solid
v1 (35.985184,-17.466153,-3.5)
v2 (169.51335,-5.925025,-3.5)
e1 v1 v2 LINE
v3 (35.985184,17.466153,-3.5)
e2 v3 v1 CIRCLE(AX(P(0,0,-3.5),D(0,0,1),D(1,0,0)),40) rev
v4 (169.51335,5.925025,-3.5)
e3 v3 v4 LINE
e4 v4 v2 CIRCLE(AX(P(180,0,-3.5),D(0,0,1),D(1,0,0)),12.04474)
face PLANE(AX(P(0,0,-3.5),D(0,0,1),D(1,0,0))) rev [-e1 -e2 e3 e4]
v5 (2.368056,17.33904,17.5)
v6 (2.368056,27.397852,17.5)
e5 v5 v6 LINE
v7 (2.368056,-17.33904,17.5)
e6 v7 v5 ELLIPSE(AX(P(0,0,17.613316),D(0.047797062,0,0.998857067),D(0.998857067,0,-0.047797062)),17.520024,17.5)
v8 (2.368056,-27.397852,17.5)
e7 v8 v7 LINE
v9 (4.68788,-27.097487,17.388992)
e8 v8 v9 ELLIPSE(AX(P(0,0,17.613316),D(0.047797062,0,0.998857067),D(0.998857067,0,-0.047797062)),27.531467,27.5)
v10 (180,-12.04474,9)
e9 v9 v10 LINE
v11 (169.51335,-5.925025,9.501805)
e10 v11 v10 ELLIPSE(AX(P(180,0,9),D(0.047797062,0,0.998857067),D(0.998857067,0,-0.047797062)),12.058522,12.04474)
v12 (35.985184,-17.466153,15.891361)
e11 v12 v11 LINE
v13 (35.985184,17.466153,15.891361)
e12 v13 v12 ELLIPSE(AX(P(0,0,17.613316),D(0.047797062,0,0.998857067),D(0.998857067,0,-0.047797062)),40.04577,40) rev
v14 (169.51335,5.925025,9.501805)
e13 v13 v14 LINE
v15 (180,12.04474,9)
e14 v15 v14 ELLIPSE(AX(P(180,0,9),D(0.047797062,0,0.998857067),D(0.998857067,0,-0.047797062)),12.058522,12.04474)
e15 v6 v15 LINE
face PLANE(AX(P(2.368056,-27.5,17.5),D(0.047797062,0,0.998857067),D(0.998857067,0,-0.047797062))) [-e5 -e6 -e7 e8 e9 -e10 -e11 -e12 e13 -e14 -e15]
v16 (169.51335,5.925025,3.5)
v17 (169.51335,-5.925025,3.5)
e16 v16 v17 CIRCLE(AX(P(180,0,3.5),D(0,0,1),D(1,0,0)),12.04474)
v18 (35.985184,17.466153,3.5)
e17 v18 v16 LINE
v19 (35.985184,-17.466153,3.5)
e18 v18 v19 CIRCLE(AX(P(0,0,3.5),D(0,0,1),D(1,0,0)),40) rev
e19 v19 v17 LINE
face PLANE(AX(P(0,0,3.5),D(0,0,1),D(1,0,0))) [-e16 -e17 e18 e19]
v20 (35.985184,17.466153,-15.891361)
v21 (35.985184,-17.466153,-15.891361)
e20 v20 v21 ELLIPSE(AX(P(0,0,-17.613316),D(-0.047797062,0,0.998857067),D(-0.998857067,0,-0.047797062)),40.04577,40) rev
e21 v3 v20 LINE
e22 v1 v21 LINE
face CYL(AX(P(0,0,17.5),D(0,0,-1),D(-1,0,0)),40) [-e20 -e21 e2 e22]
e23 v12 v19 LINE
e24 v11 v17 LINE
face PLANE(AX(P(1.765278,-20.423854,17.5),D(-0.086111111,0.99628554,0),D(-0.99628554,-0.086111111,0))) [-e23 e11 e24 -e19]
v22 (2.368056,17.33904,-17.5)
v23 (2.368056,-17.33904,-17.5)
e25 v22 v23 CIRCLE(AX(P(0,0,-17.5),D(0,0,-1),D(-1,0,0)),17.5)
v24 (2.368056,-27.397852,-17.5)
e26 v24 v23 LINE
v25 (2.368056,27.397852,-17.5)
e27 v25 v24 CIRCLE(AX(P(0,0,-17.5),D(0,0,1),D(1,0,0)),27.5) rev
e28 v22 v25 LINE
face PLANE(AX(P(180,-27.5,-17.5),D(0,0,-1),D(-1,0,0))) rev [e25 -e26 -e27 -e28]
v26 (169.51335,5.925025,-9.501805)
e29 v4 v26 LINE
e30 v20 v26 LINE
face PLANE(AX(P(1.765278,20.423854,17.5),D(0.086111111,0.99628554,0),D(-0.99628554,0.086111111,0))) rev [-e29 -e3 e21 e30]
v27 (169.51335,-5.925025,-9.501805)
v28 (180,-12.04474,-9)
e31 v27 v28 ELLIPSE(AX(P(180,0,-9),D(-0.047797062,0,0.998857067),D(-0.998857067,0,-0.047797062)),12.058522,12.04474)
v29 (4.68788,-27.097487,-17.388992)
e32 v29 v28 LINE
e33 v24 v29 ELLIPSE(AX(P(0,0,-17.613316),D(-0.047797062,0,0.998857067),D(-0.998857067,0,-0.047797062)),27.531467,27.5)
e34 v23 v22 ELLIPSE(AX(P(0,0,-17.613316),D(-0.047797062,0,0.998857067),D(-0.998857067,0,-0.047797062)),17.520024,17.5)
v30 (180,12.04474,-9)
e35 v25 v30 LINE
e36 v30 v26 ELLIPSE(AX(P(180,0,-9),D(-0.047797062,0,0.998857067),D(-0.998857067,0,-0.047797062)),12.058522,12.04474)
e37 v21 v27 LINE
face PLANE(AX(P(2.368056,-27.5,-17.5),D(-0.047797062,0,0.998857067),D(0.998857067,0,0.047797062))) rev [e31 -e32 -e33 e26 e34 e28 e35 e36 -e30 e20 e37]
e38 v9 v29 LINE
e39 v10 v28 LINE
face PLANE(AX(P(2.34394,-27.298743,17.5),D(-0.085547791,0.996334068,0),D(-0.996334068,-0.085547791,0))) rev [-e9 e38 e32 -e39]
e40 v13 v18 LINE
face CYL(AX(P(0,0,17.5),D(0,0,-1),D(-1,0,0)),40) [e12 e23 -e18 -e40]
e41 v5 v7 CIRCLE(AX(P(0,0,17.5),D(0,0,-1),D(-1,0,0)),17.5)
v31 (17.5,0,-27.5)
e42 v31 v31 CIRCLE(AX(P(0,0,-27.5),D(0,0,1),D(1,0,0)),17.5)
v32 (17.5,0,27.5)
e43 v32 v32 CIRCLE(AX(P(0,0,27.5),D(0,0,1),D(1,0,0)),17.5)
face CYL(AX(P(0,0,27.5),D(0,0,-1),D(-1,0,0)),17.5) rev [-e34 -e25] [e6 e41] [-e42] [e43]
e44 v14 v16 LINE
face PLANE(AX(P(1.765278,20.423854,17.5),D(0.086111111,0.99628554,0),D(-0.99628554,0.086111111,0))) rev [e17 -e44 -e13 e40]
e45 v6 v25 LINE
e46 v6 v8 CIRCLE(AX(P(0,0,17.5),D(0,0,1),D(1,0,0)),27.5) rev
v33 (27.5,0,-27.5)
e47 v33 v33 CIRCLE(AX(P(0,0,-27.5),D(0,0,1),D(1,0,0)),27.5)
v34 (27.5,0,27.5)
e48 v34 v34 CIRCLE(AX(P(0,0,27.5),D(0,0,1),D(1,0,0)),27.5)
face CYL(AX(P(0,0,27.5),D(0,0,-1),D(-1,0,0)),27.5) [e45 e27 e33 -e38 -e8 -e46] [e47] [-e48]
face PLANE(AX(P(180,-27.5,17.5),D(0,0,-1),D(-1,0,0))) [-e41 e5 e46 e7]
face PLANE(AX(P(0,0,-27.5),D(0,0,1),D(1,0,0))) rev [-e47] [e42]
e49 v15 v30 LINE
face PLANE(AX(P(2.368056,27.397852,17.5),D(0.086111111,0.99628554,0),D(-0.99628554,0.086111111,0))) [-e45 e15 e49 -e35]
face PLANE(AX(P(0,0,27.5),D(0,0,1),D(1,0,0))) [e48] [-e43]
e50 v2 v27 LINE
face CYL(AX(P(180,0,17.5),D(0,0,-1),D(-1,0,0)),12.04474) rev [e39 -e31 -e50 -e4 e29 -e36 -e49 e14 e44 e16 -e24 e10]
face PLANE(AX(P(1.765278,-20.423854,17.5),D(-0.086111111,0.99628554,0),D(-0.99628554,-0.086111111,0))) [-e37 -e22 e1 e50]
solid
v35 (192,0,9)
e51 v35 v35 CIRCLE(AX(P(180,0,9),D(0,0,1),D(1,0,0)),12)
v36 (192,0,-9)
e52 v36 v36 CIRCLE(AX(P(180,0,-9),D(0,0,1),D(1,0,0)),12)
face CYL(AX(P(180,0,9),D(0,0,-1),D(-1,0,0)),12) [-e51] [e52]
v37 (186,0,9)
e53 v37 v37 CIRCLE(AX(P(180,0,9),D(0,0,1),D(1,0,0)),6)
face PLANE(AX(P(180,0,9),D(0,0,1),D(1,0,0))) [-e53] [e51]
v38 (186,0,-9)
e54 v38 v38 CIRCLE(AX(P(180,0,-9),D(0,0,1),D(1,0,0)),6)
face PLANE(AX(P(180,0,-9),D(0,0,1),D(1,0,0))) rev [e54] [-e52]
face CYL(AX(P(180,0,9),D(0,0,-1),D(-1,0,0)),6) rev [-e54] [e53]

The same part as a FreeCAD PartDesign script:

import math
import FreeCAD as App
import Part
import Sketcher

doc = App.newDocument("Part")
body = doc.addObject("PartDesign::Body", "Body")

sketch1 = doc.addObject("Sketcher::SketchObject", "Sketch")
body.addObject(sketch1)
sketch1.AttachmentSupport = (doc.XY_Plane, [""])
sketch1.MapMode = "FlatFace"
sketch1.addGeometry(Part.Circle(App.Vector(0, 0, 0), App.Vector(0, 0, 1), 28), False)
sketch1.addGeometry(Part.Circle(App.Vector(0, 0, 0), App.Vector(0, 0, 1), 18), False)
sketch1.addConstraint(Sketcher.Constraint("Coincident", 0, 3, -1, 1))
sketch1.addConstraint(Sketcher.Constraint("Coincident", 1, 3, -1, 1))
sketch1.addConstraint(Sketcher.Constraint("Diameter", 0, 55.0))
sketch1.addConstraint(Sketcher.Constraint("Diameter", 1, 35.0))
pad1 = doc.addObject("PartDesign::Pad", "Pad")
body.addObject(pad1)
pad1.Profile = sketch1
pad1.Length = 55
pad1.Midplane = True

sketch2 = doc.addObject("Sketcher::SketchObject", "Sketch001")
body.addObject(sketch2)
sketch2.AttachmentSupport = (doc.XY_Plane, [""])
sketch2.MapMode = "FlatFace"
sketch2.addGeometry(Part.LineSegment(App.Vector(180, 12.045, 0), App.Vector(2.368, 27.398, 0)), False)
sketch2.addGeometry(Part.ArcOfCircle(Part.Circle(App.Vector(0, 0, 0), App.Vector(0, 0, 1), 27.5), math.radians(0), math.radians(85)), False)
sketch2.addGeometry(Part.ArcOfCircle(Part.Circle(App.Vector(0, 0, 0), App.Vector(0, 0, 1), 27.5), math.radians(-80), math.radians(0)), False)
sketch2.addGeometry(Part.LineSegment(App.Vector(4.688, -27.097, 0), App.Vector(180, -12.045, 0)), False)
sketch2.addGeometry(Part.ArcOfCircle(Part.Circle(App.Vector(180, 0, 0), App.Vector(0, 0, 1), 12.045), math.radians(-150), math.radians(-90)), False)
sketch2.addGeometry(Part.ArcOfCircle(Part.Circle(App.Vector(180.002, 0.001, 0), App.Vector(0, 0, 1), 12.047), math.radians(-150.53), math.radians(-150.47)), False)
sketch2.addGeometry(Part.LineSegment(App.Vector(169.513, -5.925, 0), App.Vector(35.985, -17.466, 0)), False)
sketch2.addGeometry(Part.ArcOfCircle(Part.Circle(App.Vector(0, 0, 0), App.Vector(0, 0, 1), 40), math.radians(-26), math.radians(0)), False)
sketch2.addGeometry(Part.ArcOfCircle(Part.Circle(App.Vector(0, 0, 0), App.Vector(0, 0, 1), 40), math.radians(0), math.radians(26)), False)
sketch2.addGeometry(Part.LineSegment(App.Vector(35.985, 17.466, 0), App.Vector(169.513, 5.925, 0)), False)
sketch2.addGeometry(Part.ArcOfCircle(Part.Circle(App.Vector(180, 0, 0), App.Vector(0, 0, 1), 12.045), math.radians(90), math.radians(151)), False)
sketch2.addConstraint(Sketcher.Constraint("Tangent", 0, 2, 1, 2))
sketch2.addConstraint(Sketcher.Constraint("Tangent", 1, 1, 2, 2))
sketch2.addConstraint(Sketcher.Constraint("Coincident", 2, 1, 3, 1))
sketch2.addConstraint(Sketcher.Constraint("Coincident", 3, 2, 4, 2))
sketch2.addConstraint(Sketcher.Constraint("Tangent", 4, 1, 5, 2))
sketch2.addConstraint(Sketcher.Constraint("Coincident", 5, 1, 6, 1))
sketch2.addConstraint(Sketcher.Constraint("Coincident", 6, 2, 7, 1))
sketch2.addConstraint(Sketcher.Constraint("Tangent", 7, 2, 8, 1))
sketch2.addConstraint(Sketcher.Constraint("Coincident", 8, 2, 9, 1))
sketch2.addConstraint(Sketcher.Constraint("Coincident", 9, 2, 10, 2))
sketch2.addConstraint(Sketcher.Constraint("Coincident", 10, 1, 0, 1))
sketch2.addConstraint(Sketcher.Constraint("Coincident", 1, 3, -1, 1))
sketch2.addConstraint(Sketcher.Constraint("Coincident", 7, 3, -1, 1))
sketch2.addConstraint(Sketcher.Constraint("Coincident", 10, 3, 4, 3))
sketch2.addConstraint(Sketcher.Constraint("Equal", 1, 2))
sketch2.addConstraint(Sketcher.Constraint("Equal", 7, 8))
sketch2.addConstraint(Sketcher.Constraint("Equal", 4, 10))
sketch2.addConstraint(Sketcher.Constraint("Symmetric", 5, 1, 9, 2, -1))
sketch2.addConstraint(Sketcher.Constraint("PointOnObject", 1, 1, -1))
sketch2.addConstraint(Sketcher.Constraint("PointOnObject", 7, 2, -1))
sketch2.addConstraint(Sketcher.Constraint("Parallel", 0, 9))
sketch2.addConstraint(Sketcher.Constraint("Vertical", 10, 3, 3, 2))
sketch2.addConstraint(Sketcher.Constraint("Vertical", 6, 2, 8, 2))
sketch2.addConstraint(Sketcher.Constraint("Vertical", 3, 2, 10, 1))
sketch2.addConstraint(Sketcher.Constraint("Radius", 7, 40.0))
sketch2.addConstraint(Sketcher.Constraint("Radius", 1, 27.5))
sketch2.addConstraint(Sketcher.Constraint("DistanceX", -1, 1, 4, 3, 180.0))
sketch2.addConstraint(Sketcher.Constraint("Radius", 4, 12.04474))
sketch2.addConstraint(Sketcher.Constraint("Distance", 6, 134.026))
sketch2.addConstraint(Sketcher.Constraint("Radius", 5, 12.046646))
sketch2.addConstraint(Sketcher.Constraint("DistanceX", -1, 1, 2, 1, 4.68788))
sketch2.addConstraint(Sketcher.Constraint("DistanceX", -1, 1, 4, 1, 169.519669))
pad2 = doc.addObject("PartDesign::Pad", "Pad001")
body.addObject(pad2)
pad2.Profile = sketch2
pad2.Length = 35
pad2.Midplane = True

sketch3 = doc.addObject("Sketcher::SketchObject", "Sketch002")
body.addObject(sketch3)
sketch3.AttachmentSupport = (doc.XY_Plane, [""])
sketch3.MapMode = "FlatFace"
sketch3.addGeometry(Part.ArcOfCircle(Part.Circle(App.Vector(180, 0, 0), App.Vector(0, 0, 1), 12), math.radians(151), math.radians(180)), False)
sketch3.addGeometry(Part.LineSegment(App.Vector(170, 6, 0), App.Vector(36, 17, 0)), False)
sketch3.addGeometry(Part.ArcOfCircle(Part.Circle(App.Vector(0, 0, 0), App.Vector(0, 0, 1), 40), math.radians(0), math.radians(26)), False)
sketch3.addGeometry(Part.ArcOfCircle(Part.Circle(App.Vector(0, 0, 0), App.Vector(0, 0, 1), 40), math.radians(-26), math.radians(0)), False)
sketch3.addGeometry(Part.LineSegment(App.Vector(36, -17, 0), App.Vector(170, -6, 0)), False)
sketch3.addGeometry(Part.ArcOfCircle(Part.Circle(App.Vector(180, 0, 0), App.Vector(0, 0, 1), 12), math.radians(-180), math.radians(-151)), False)
sketch3.addConstraint(Sketcher.Constraint("Coincident", 0, 1, 1, 1))
sketch3.addConstraint(Sketcher.Constraint("Coincident", 1, 2, 2, 2))
sketch3.addConstraint(Sketcher.Constraint("Tangent", 2, 1, 3, 2))
sketch3.addConstraint(Sketcher.Constraint("Coincident", 3, 1, 4, 1))
sketch3.addConstraint(Sketcher.Constraint("Coincident", 4, 2, 5, 2))
sketch3.addConstraint(Sketcher.Constraint("Tangent", 5, 1, 0, 2))
sketch3.addConstraint(Sketcher.Constraint("Coincident", 2, 3, -1, 1))
sketch3.addConstraint(Sketcher.Constraint("Equal", 2, 3))
sketch3.addConstraint(Sketcher.Constraint("Equal", 0, 5))
sketch3.addConstraint(Sketcher.Constraint("Symmetric", 0, 1, 4, 2, -1))
sketch3.addConstraint(Sketcher.Constraint("PointOnObject", 2, 1, -1))
sketch3.addConstraint(Sketcher.Constraint("PointOnObject", 5, 1, -1))
sketch3.addConstraint(Sketcher.Constraint("Vertical", 1, 2, 3, 1))
sketch3.addConstraint(Sketcher.Constraint("Radius", 2, 40.0))
sketch3.addConstraint(Sketcher.Constraint("DistanceX", -1, 1, 0, 3, 180.0))
sketch3.addConstraint(Sketcher.Constraint("Radius", 0, 12.04474))
sketch3.addConstraint(Sketcher.Constraint("Distance", 1, 134.026))
sketch3.addConstraint(Sketcher.Constraint("DistanceX", -1, 1, 0, 1, 169.51335))
pad3 = doc.addObject("PartDesign::Pad", "Pad002")
body.addObject(pad3)
pad3.Profile = sketch3
pad3.Length = 7
pad3.Midplane = True

sketch4 = doc.addObject("Sketcher::SketchObject", "Sketch003")
body.addObject(sketch4)
sketch4.AttachmentSupport = (doc.XZ_Plane, [""])
sketch4.MapMode = "FlatFace"
sketch4.addGeometry(Part.LineSegment(App.Vector(2, -18, 0), App.Vector(180, -9, 0)), False)
sketch4.addGeometry(Part.LineSegment(App.Vector(180, -9, 0), App.Vector(180, -18, 0)), False)
sketch4.addGeometry(Part.LineSegment(App.Vector(180, -18, 0), App.Vector(2, -18, 0)), False)
sketch4.addGeometry(Part.LineSegment(App.Vector(180, 18, 0), App.Vector(180, 9, 0)), False)
sketch4.addGeometry(Part.LineSegment(App.Vector(180, 9, 0), App.Vector(2, 18, 0)), False)
sketch4.addGeometry(Part.LineSegment(App.Vector(2, 18, 0), App.Vector(180, 18, 0)), False)
sketch4.addConstraint(Sketcher.Constraint("Coincident", 0, 2, 1, 1))
sketch4.addConstraint(Sketcher.Constraint("Coincident", 1, 2, 2, 1))
sketch4.addConstraint(Sketcher.Constraint("Coincident", 2, 2, 0, 1))
sketch4.addConstraint(Sketcher.Constraint("Coincident", 3, 2, 4, 1))
sketch4.addConstraint(Sketcher.Constraint("Coincident", 4, 2, 5, 1))
sketch4.addConstraint(Sketcher.Constraint("Coincident", 5, 2, 3, 1))
sketch4.addConstraint(Sketcher.Constraint("Vertical", 1))
sketch4.addConstraint(Sketcher.Constraint("Horizontal", 2))
sketch4.addConstraint(Sketcher.Constraint("Vertical", 3))
sketch4.addConstraint(Sketcher.Constraint("Horizontal", 5))
sketch4.addConstraint(Sketcher.Constraint("Symmetric", 0, 2, 3, 2, -1))
sketch4.addConstraint(Sketcher.Constraint("Symmetric", 2, 2, 4, 2, -1))
sketch4.addConstraint(Sketcher.Constraint("DistanceY", 1, 2, 1, 1, 8.5))
sketch4.addConstraint(Sketcher.Constraint("DistanceX", -1, 1, 0, 2, 180.0))
sketch4.addConstraint(Sketcher.Constraint("DistanceY", 0, 2, -1, 1, 9.0))
sketch4.addConstraint(Sketcher.Constraint("Distance", 0, 177.835198))
pocket1 = doc.addObject("PartDesign::Pocket", "Pocket")
body.addObject(pocket1)
pocket1.Profile = sketch4
pocket1.Type = "ThroughAll"
pocket1.Midplane = True
body2 = doc.addObject("PartDesign::Body", "Body001")

sketch5 = doc.addObject("Sketcher::SketchObject", "Sketch004")
body2.addObject(sketch5)
sketch5.AttachmentSupport = (doc.getObject("XY_Plane001"), [""])
sketch5.MapMode = "FlatFace"
sketch5.addGeometry(Part.Circle(App.Vector(180, 0, 0), App.Vector(0, 0, 1), 12), False)
sketch5.addGeometry(Part.Circle(App.Vector(180, 0, 0), App.Vector(0, 0, 1), 6), False)
sketch5.addConstraint(Sketcher.Constraint("Coincident", 1, 3, 0, 3))
sketch5.addConstraint(Sketcher.Constraint("PointOnObject", 0, 3, -1))
sketch5.addConstraint(Sketcher.Constraint("Diameter", 0, 24.0))
sketch5.addConstraint(Sketcher.Constraint("Diameter", 1, 12.0))
sketch5.addConstraint(Sketcher.Constraint("DistanceX", -1, 1, 0, 3, 180.0))
pad4 = doc.addObject("PartDesign::Pad", "Pad003")
body2.addObject(pad4)
pad4.Profile = sketch5
pad4.Length = 18
pad4.Midplane = True

doc.recompute()
